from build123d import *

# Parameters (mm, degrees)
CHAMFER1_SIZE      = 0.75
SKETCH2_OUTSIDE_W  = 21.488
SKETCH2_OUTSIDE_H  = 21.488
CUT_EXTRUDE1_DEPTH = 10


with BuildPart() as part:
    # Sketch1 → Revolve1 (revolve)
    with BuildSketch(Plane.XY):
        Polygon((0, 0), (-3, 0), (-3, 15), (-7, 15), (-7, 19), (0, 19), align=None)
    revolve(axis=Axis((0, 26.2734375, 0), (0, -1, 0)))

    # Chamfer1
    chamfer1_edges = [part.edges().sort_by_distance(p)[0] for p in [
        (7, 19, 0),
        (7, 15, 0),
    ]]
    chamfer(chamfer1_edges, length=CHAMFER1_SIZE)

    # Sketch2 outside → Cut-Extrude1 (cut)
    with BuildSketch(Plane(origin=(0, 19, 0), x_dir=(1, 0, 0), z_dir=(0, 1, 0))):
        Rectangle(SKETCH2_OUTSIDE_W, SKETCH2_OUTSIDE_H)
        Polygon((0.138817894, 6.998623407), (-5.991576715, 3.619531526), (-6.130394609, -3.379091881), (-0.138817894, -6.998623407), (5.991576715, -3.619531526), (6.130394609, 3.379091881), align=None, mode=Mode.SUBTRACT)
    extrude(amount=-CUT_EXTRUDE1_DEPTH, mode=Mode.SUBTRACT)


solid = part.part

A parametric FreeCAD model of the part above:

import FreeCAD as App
import Part
import Sketcher


def edges_at(feature, points):
    """Names of the edges that pass closest to the given points."""
    edges = feature.Shape.Edges
    near = lambda p: min(range(len(edges)), key=lambda i: edges[i].distToShape(Part.Vertex(*p))[0])
    return sorted({f"Edge{near(p) + 1}" for p in points})

doc = App.newDocument("Part")
body = doc.addObject("PartDesign::Body", "Body")

# Sketch on XY plane
sketch1 = body.newObject("Sketcher::SketchObject", "Sketch")
sketch1.AttachmentSupport = (doc.getObject("XY_Plane"), [""])
sketch1.MapMode = "FlatFace"
sketch1.addGeometry([
    Part.LineSegment(App.Vector(-3, 0, 0), App.Vector(0, 0, 0)),  # 0
    Part.LineSegment(App.Vector(0, 0, 0), App.Vector(0, 19, 0)),  # 1
    Part.LineSegment(App.Vector(0, 19, 0), App.Vector(-7, 19, 0)),  # 2
    Part.LineSegment(App.Vector(-7, 19, 0), App.Vector(-7, 15, 0)),  # 3
    Part.LineSegment(App.Vector(-7, 15, 0), App.Vector(-3, 15, 0)),  # 4
    Part.LineSegment(App.Vector(-3, 15, 0), App.Vector(-3, 0, 0)),  # 5
], False)
sketch1.addConstraint([
    Sketcher.Constraint("Coincident", 0, 2, 1, 1),
    Sketcher.Constraint("Coincident", 1, 2, 2, 1),
    Sketcher.Constraint("Coincident", 2, 2, 3, 1),
    Sketcher.Constraint("Coincident", 3, 2, 4, 1),
    Sketcher.Constraint("Coincident", 4, 2, 5, 1),
    Sketcher.Constraint("Coincident", 5, 2, 0, 1),
    Sketcher.Constraint("Horizontal", 0),
    Sketcher.Constraint("Vertical", 1),
    Sketcher.Constraint("Horizontal", 2),
    Sketcher.Constraint("Vertical", 3),
    Sketcher.Constraint("Horizontal", 4),
    Sketcher.Constraint("Vertical", 5),
    Sketcher.Constraint("Coincident", 0, 2, -1, 1),
    Sketcher.Constraint("Equal", 4, 3),
    Sketcher.Constraint("DistanceX", 0, 1, 0, 2, 3.0),
    Sketcher.Constraint("DistanceX", 2, 2, 2, 1, 7.0),
    Sketcher.Constraint("DistanceY", 1, 1, 1, 2, 19.0),
])
revolution = body.newObject("PartDesign::Revolution", "Revolution")
revolution.Profile = sketch1
revolution.ReferenceAxis = (sketch1, ["V_Axis"])
revolution.Angle = 360
doc.recompute()

chamfer = body.newObject("PartDesign::Chamfer", "Chamfer")
chamfer.Base = (revolution, edges_at(revolution, [(7, 19, 0), (7, 15, 0)]))
chamfer.Size = 0.75

# Sketch on XZ plane
sketch2 = body.newObject("Sketcher::SketchObject", "Sketch001")
sketch2.AttachmentSupport = (doc.getObject("XZ_Plane"), [""])
sketch2.MapMode = "FlatFace"
sketch2.AttachmentOffset = App.Placement(App.Vector(0, 0, -19), App.Rotation())
sketch2.addGeometry([
    Part.LineSegment(App.Vector(-10.744, -10.744, 0), App.Vector(-10.744, 10.744, 0)),  # 0
    Part.LineSegment(App.Vector(-10.744, 10.744, 0), App.Vector(10.744, 10.744, 0)),  # 1
    Part.LineSegment(App.Vector(10.744, 10.744, 0), App.Vector(10.744, -10.744, 0)),  # 2
    Part.LineSegment(App.Vector(10.744, -10.744, 0), App.Vector(-10.744, -10.744, 0)),  # 3
    Part.LineSegment(App.Vector(-5.991577, -3.619532, 0), App.Vector(0.138818, -6.998623, 0)),  # 4
    Part.LineSegment(App.Vector(0.138818, -6.998623, 0), App.Vector(6.130395, -3.379092, 0)),  # 5
    Part.LineSegment(App.Vector(6.130395, -3.379092, 0), App.Vector(5.991577, 3.619532, 0)),  # 6
    Part.LineSegment(App.Vector(5.991577, 3.619532, 0), App.Vector(-0.138818, 6.998623, 0)),  # 7
    Part.LineSegment(App.Vector(-0.138818, 6.998623, 0), App.Vector(-6.130395, 3.379092, 0)),  # 8
    Part.LineSegment(App.Vector(-6.130395, 3.379092, 0), App.Vector(-5.991577, -3.619532, 0)),  # 9
], False)
sketch2.addConstraint([
    Sketcher.Constraint("Coincident", 0, 2, 1, 1),
    Sketcher.Constraint("Coincident", 1, 2, 2, 1),
    Sketcher.Constraint("Coincident", 2, 2, 3, 1),
    Sketcher.Constraint("Coincident", 3, 2, 0, 1),
    Sketcher.Constraint("Coincident", 4, 2, 5, 1),
    Sketcher.Constraint("Coincident", 5, 2, 6, 1),
    Sketcher.Constraint("Coincident", 6, 2, 7, 1),
    Sketcher.Constraint("Coincident", 7, 2, 8, 1),
    Sketcher.Constraint("Coincident", 8, 2, 9, 1),
    Sketcher.Constraint("Coincident", 9, 2, 4, 1),
    Sketcher.Constraint("Vertical", 0),
    Sketcher.Constraint("Horizontal", 1),
    Sketcher.Constraint("Vertical", 2),
    Sketcher.Constraint("Horizontal", 3),
    Sketcher.Constraint("Symmetric", 0, 2, 2, 2, -1, 1),
    Sketcher.Constraint("Symmetric", 4, 2, 7, 2, -1, 1),
    Sketcher.Constraint("Symmetric", 5, 2, 8, 2, -1, 1),
    Sketcher.Constraint("Symmetric", 6, 2, 9, 2, -1, 1),
    Sketcher.Constraint("Equal", 3, 0),
    Sketcher.Constraint("Equal", 4, 5),
    Sketcher.Constraint("Equal", 5, 6),
    Sketcher.Constraint("Distance", 4, 7.0),
    Sketcher.Constraint("DistanceX", 1, 1, 1, 2, 21.488),
    Sketcher.Constraint("DistanceY", 5, 2, -1, 1, 3.379092),
    Sketcher.Constraint("DistanceY", -1, 1, 6, 2, 3.619532),
    Sketcher.Constraint("DistanceY", 4, 2, 5, 2, 3.619532),
])
pocket1 = body.newObject("PartDesign::Pocket", "Pocket")
pocket1.Profile = sketch2
pocket1.Length = 10
pocket1.Reversed = True

doc.recompute()
